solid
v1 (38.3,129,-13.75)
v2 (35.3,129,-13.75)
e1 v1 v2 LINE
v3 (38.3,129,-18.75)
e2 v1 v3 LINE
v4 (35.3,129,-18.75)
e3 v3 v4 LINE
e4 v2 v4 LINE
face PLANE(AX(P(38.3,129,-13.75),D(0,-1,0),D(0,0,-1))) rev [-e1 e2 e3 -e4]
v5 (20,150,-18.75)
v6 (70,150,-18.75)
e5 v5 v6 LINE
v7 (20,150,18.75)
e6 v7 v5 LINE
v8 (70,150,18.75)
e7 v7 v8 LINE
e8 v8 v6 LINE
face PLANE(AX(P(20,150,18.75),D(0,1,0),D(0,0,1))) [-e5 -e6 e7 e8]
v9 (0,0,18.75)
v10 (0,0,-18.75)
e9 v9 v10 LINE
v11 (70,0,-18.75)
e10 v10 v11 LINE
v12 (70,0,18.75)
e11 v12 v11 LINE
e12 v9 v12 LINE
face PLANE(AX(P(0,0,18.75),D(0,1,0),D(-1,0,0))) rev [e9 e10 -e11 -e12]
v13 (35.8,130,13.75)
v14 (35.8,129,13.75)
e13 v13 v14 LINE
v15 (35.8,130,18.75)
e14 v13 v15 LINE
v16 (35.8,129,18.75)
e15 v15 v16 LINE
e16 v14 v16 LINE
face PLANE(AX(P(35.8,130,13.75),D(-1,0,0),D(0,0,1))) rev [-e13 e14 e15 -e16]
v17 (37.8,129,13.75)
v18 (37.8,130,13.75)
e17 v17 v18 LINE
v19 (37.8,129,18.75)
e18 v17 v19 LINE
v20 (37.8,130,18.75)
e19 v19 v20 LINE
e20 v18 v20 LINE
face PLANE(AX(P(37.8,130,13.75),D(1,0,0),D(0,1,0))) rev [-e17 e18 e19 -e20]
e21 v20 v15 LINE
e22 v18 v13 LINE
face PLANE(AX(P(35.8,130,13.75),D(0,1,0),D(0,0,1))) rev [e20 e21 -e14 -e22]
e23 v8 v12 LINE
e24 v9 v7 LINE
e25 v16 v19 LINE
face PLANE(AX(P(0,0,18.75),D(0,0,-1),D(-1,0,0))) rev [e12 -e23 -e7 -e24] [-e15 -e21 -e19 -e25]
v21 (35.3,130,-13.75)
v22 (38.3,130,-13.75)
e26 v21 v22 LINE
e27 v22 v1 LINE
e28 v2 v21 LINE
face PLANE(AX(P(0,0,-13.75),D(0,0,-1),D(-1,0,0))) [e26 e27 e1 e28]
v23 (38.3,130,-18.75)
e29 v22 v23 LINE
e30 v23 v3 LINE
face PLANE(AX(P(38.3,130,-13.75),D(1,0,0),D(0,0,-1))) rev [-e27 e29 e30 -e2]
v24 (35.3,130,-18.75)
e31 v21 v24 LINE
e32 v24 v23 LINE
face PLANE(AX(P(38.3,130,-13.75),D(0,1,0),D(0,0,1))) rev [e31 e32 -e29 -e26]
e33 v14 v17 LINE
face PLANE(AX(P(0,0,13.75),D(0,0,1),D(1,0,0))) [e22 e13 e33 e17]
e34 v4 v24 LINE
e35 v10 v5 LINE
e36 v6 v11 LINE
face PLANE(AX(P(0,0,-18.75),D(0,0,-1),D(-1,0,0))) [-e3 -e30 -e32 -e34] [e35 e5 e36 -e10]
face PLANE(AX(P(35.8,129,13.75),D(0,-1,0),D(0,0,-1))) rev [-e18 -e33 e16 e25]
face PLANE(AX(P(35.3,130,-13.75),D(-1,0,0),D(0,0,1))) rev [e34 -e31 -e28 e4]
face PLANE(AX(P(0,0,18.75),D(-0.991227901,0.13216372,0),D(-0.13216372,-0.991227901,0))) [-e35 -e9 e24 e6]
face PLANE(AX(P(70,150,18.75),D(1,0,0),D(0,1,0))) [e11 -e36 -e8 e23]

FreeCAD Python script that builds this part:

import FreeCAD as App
import Part
import Sketcher

V = App.Vector
Q = App.Units.Quantity

doc = App.newDocument("Part")
params = doc.addObject("Spreadsheet::Sheet", "Params")
for row, (alias, value) in enumerate([
    ("sketch1_width", "70 mm"),
    ("sketch1_width2", "50 mm"),
    ("sketch1_height", "150 mm"),
    ("pad1_length", "37.5 mm"),
    ("sketch2_width", "3 mm"),
    ("sketch2_height", "1 mm"),
    ("pocket1_length", "5 mm"),
    ("sketch3_width", "2 mm"),
    ("sketch3_height", "1 mm"),
    ("pocket2_length", "5 mm"),
], start=1):
    params.set(f"A{row}", alias)
    params.set(f"B{row}", "=" + value)
    params.setAlias(f"B{row}", alias)

body = doc.addObject("PartDesign::Body", "Body")

# Sketch on XY plane
sketch1 = body.newObject("Sketcher::SketchObject", "Sketch")
sketch1.AttachmentSupport = (doc.getObject("XY_Plane"), [""])
sketch1.MapMode = "FlatFace"
sketch1.addGeometry(Part.LineSegment(V(0, 0, 0), V(70, 0, 0)), False)
sketch1.addGeometry(Part.LineSegment(V(70, 0, 0), V(70, 150, 0)), False)
sketch1.addGeometry(Part.LineSegment(V(70, 150, 0), V(20, 150, 0)), False)
sketch1.addGeometry(Part.LineSegment(V(20, 150, 0), V(0, 0, 0)), False)
sketch1.addConstraint(Sketcher.Constraint("Coincident", 0, 2, 1, 1))
sketch1.addConstraint(Sketcher.Constraint("Coincident", 1, 2, 2, 1))
sketch1.addConstraint(Sketcher.Constraint("Coincident", 2, 2, 3, 1))
sketch1.addConstraint(Sketcher.Constraint("Coincident", 3, 2, 0, 1))
sketch1.addConstraint(Sketcher.Constraint("Horizontal", 0))
sketch1.addConstraint(Sketcher.Constraint("Vertical", 1))
sketch1.addConstraint(Sketcher.Constraint("Horizontal", 2))
sketch1.addConstraint(Sketcher.Constraint("Coincident", 3, 2, -1, 1))
sketch1.addConstraint(Sketcher.Constraint("DistanceX", 0, 1, 0, 2, Q("70 mm")))
sketch1.addConstraint(Sketcher.Constraint("DistanceX", 2, 2, 2, 1, Q("50 mm")))
sketch1.addConstraint(Sketcher.Constraint("DistanceY", 1, 1, 1, 2, Q("150 mm")))
sketch1.setExpression("Constraints[8]", "Params.sketch1_width")
sketch1.setExpression("Constraints[9]", "Params.sketch1_width2")
sketch1.setExpression("Constraints[10]", "Params.sketch1_height")
pad1 = body.newObject("PartDesign::Pad", "Pad")
pad1.Profile = sketch1
pad1.setExpression("Length", "Params.pad1_length")
pad1.Midplane = True

# Sketch on XY plane
sketch2 = body.newObject("Sketcher::SketchObject", "Sketch001")
sketch2.AttachmentSupport = (doc.getObject("XY_Plane"), [""])
sketch2.MapMode = "FlatFace"
sketch2.AttachmentOffset = App.Placement(V(0, 0, -18.75), App.Rotation())
sketch2.addGeometry(Part.LineSegment(V(38.3, 130, 0), V(38.3, 129, 0)), False)
sketch2.addGeometry(Part.LineSegment(V(38.3, 129, 0), V(35.3, 129, 0)), False)
sketch2.addGeometry(Part.LineSegment(V(35.3, 129, 0), V(35.3, 130, 0)), False)
sketch2.addGeometry(Part.LineSegment(V(35.3, 130, 0), V(38.3, 130, 0)), False)
sketch2.addConstraint(Sketcher.Constraint("Coincident", 0, 2, 1, 1))
sketch2.addConstraint(Sketcher.Constraint("Coincident", 1, 2, 2, 1))
sketch2.addConstraint(Sketcher.Constraint("Coincident", 2, 2, 3, 1))
sketch2.addConstraint(Sketcher.Constraint("Coincident", 3, 2, 0, 1))
sketch2.addConstraint(Sketcher.Constraint("Vertical", 0))
sketch2.addConstraint(Sketcher.Constraint("Horizontal", 1))
sketch2.addConstraint(Sketcher.Constraint("Vertical", 2))
sketch2.addConstraint(Sketcher.Constraint("Horizontal", 3))
sketch2.addConstraint(Sketcher.Constraint("DistanceX", 1, 2, 1, 1, Q("3 mm")))
sketch2.addConstraint(Sketcher.Constraint("DistanceY", 0, 2, 0, 1, Q("1 mm")))
sketch2.addConstraint(Sketcher.Constraint("DistanceY", -1, 1, 0, 2, Q("129 mm")))
sketch2.addConstraint(Sketcher.Constraint("DistanceX", -1, 1, 0, 2, Q("38.3 mm")))
sketch2.setExpression("Constraints[8]", "Params.sketch2_width")
sketch2.setExpression("Constraints[9]", "Params.sketch2_height")
pocket1 = body.newObject("PartDesign::Pocket", "Pocket")
pocket1.Profile = sketch2
pocket1.setExpression("Length", "Params.pocket1_length")
pocket1.Reversed = True

# Sketch on XY plane
sketch3 = body.newObject("Sketcher::SketchObject", "Sketch002")
sketch3.AttachmentSupport = (doc.getObject("XY_Plane"), [""])
sketch3.MapMode = "FlatFace"
sketch3.AttachmentOffset = App.Placement(V(0, 0, 18.75), App.Rotation())
sketch3.addGeometry(Part.LineSegment(V(35.8, 130, 0), V(35.8, 129, 0)), False)
sketch3.addGeometry(Part.LineSegment(V(35.8, 129, 0), V(37.8, 129, 0)), False)
sketch3.addGeometry(Part.LineSegment(V(37.8, 129, 0), V(37.8, 130, 0)), False)
sketch3.addGeometry(Part.LineSegment(V(37.8, 130, 0), V(35.8, 130, 0)), False)
sketch3.addConstraint(Sketcher.Constraint("Coincident", 0, 2, 1, 1))
sketch3.addConstraint(Sketcher.Constraint("Coincident", 1, 2, 2, 1))
sketch3.addConstraint(Sketcher.Constraint("Coincident", 2, 2, 3, 1))
sketch3.addConstraint(Sketcher.Constraint("Coincident", 3, 2, 0, 1))
sketch3.addConstraint(Sketcher.Constraint("Vertical", 0))
sketch3.addConstraint(Sketcher.Constraint("Horizontal", 1))
sketch3.addConstraint(Sketcher.Constraint("Vertical", 2))
sketch3.addConstraint(Sketcher.Constraint("Horizontal", 3))
sketch3.addConstraint(Sketcher.Constraint("DistanceX", 1, 1, 1, 2, Q("2 mm")))
sketch3.addConstraint(Sketcher.Constraint("DistanceY", 0, 2, 0, 1, Q("1 mm")))
sketch3.addConstraint(Sketcher.Constraint("DistanceY", -1, 1, 0, 2, Q("129 mm")))
sketch3.addConstraint(Sketcher.Constraint("DistanceX", -1, 1, 0, 2, Q("35.8 mm")))
sketch3.setExpression("Constraints[8]", "Params.sketch3_width")
sketch3.setExpression("Constraints[9]", "Params.sketch3_height")
pocket2 = body.newObject("PartDesign::Pocket", "Pocket001")
pocket2.Profile = sketch3
pocket2.setExpression("Length", "Params.pocket2_length")

doc.recompute()
